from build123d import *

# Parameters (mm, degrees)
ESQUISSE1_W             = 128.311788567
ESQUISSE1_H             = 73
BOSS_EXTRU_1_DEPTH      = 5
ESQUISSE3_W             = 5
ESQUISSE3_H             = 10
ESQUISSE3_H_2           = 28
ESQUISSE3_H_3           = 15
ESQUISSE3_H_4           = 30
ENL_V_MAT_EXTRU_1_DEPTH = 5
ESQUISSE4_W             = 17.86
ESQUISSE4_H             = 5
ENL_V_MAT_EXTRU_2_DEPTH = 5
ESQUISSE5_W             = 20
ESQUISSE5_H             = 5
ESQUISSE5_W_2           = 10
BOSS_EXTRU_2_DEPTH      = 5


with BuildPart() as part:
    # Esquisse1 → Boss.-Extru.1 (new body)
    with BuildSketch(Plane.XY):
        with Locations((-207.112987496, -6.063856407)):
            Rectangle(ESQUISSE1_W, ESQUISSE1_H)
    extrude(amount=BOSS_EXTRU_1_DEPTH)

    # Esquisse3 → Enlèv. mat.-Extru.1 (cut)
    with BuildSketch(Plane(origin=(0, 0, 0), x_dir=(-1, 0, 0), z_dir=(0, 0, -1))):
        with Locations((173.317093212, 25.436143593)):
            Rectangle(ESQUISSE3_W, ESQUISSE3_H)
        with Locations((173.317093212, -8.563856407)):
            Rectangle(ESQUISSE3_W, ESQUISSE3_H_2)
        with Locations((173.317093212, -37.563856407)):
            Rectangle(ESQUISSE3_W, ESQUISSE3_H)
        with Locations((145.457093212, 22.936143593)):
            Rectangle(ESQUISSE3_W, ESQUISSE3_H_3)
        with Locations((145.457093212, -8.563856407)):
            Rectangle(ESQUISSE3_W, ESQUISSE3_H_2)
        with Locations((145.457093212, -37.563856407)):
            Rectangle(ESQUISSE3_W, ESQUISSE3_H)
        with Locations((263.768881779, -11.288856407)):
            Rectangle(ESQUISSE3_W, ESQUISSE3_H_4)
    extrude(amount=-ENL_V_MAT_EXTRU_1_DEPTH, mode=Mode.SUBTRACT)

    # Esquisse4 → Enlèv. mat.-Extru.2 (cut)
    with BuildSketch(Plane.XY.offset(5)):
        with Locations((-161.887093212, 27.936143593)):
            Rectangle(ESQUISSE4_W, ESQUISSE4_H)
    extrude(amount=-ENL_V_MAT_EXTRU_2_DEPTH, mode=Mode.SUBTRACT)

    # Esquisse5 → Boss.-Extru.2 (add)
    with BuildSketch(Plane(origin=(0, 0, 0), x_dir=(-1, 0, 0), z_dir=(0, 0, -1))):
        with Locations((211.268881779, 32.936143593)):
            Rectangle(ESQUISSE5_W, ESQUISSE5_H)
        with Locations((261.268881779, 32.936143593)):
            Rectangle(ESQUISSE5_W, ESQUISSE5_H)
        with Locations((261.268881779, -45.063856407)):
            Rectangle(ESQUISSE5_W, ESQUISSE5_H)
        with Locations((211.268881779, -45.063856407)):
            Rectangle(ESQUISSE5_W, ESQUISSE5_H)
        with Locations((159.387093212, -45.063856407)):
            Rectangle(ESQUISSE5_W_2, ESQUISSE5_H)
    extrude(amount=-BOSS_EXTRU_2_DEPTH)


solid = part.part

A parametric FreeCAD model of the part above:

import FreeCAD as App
import Part
import Sketcher
from FreeCAD import Vector
Q = App.Units.Quantity


def add_polygon(sketch, points):
    """Adds a closed chain of lines whose ends are joined by coincident constraints."""
    first, n = sketch.GeometryCount, len(points)
    for a, b in zip(points, points[1:] + points[:1]):
        sketch.addGeometry(Part.LineSegment(App.Vector(*a, 0), App.Vector(*b, 0)), False)
    for i in range(n):
        sketch.addConstraint(Sketcher.Constraint("Coincident", first + i, 2, first + (i + 1) % n, 1))

doc = App.newDocument("Part")
body = doc.addObject("PartDesign::Body", "Body")

sketch1 = doc.addObject("Sketcher::SketchObject", "Sketch")
body.addObject(sketch1)
sketch1.AttachmentSupport = (doc.XY_Plane, [""])
sketch1.MapMode = "FlatFace"
add_polygon(sketch1, [(-271, 30), (-271, -43), (-143, -43), (-143, 30)])
sketch1.addConstraint(Sketcher.Constraint("Vertical", 0))
sketch1.addConstraint(Sketcher.Constraint("Horizontal", 1))
sketch1.addConstraint(Sketcher.Constraint("Vertical", 2))
sketch1.addConstraint(Sketcher.Constraint("Horizontal", 3))
sketch1.addConstraint(Sketcher.Constraint("DistanceY", 0, 2, 0, 1, Q("73 mm")))
sketch1.addConstraint(Sketcher.Constraint("DistanceX", 1, 1, 1, 2, Q("128.311789 mm")))
sketch1.addConstraint(Sketcher.Constraint("DistanceX", 0, 2, -1, 1, Q("271.268882 mm")))
sketch1.addConstraint(Sketcher.Constraint("DistanceY", 0, 2, -1, 1, Q("42.563856 mm")))
pad1 = doc.addObject("PartDesign::Pad", "Pad")
body.addObject(pad1)
pad1.Profile = sketch1
pad1.Length = 5

sketch2 = doc.addObject("Sketcher::SketchObject", "Sketch001")
body.addObject(sketch2)
sketch2.AttachmentSupport = (doc.XY_Plane, [""])
sketch2.MapMode = "FlatFace"
add_polygon(sketch2, [(-171, 30), (-171, 20), (-176, 20), (-176, 30)])
add_polygon(sketch2, [(-171, 5), (-171, -23), (-176, -23), (-176, 5)])
add_polygon(sketch2, [(-171, -33), (-171, -43), (-176, -43), (-176, -33)])
add_polygon(sketch2, [(-143, 30), (-143, 15), (-148, 15), (-148, 30)])
add_polygon(sketch2, [(-143, 5), (-143, -23), (-148, -23), (-148, 5)])
add_polygon(sketch2, [(-143, -33), (-143, -43), (-148, -43), (-148, -33)])
add_polygon(sketch2, [(-261, 4), (-261, -26), (-266, -26), (-266, 4)])
sketch2.addConstraint(Sketcher.Constraint("Vertical", 0))
sketch2.addConstraint(Sketcher.Constraint("Horizontal", 1))
sketch2.addConstraint(Sketcher.Constraint("Vertical", 2))
sketch2.addConstraint(Sketcher.Constraint("Horizontal", 3))
sketch2.addConstraint(Sketcher.Constraint("Vertical", 4))
sketch2.addConstraint(Sketcher.Constraint("Horizontal", 5))
sketch2.addConstraint(Sketcher.Constraint("Vertical", 6))
sketch2.addConstraint(Sketcher.Constraint("Horizontal", 7))
sketch2.addConstraint(Sketcher.Constraint("Vertical", 8))
sketch2.addConstraint(Sketcher.Constraint("Horizontal", 9))
sketch2.addConstraint(Sketcher.Constraint("Vertical", 10))
sketch2.addConstraint(Sketcher.Constraint("Horizontal", 11))
sketch2.addConstraint(Sketcher.Constraint("Vertical", 12))
sketch2.addConstraint(Sketcher.Constraint("Horizontal", 13))
sketch2.addConstraint(Sketcher.Constraint("Vertical", 14))
sketch2.addConstraint(Sketcher.Constraint("Horizontal", 15))
sketch2.addConstraint(Sketcher.Constraint("Vertical", 16))
sketch2.addConstraint(Sketcher.Constraint("Horizontal", 17))
sketch2.addConstraint(Sketcher.Constraint("Vertical", 18))
sketch2.addConstraint(Sketcher.Constraint("Horizontal", 19))
sketch2.addConstraint(Sketcher.Constraint("Vertical", 20))
sketch2.addConstraint(Sketcher.Constraint("Horizontal", 21))
sketch2.addConstraint(Sketcher.Constraint("Vertical", 22))
sketch2.addConstraint(Sketcher.Constraint("Horizontal", 23))
sketch2.addConstraint(Sketcher.Constraint("Vertical", 24))
sketch2.addConstraint(Sketcher.Constraint("Horizontal", 25))
sketch2.addConstraint(Sketcher.Constraint("Vertical", 26))
sketch2.addConstraint(Sketcher.Constraint("Horizontal", 27))
sketch2.addConstraint(Sketcher.Constraint("Horizontal", 3, 2, 14, 2))
sketch2.addConstraint(Sketcher.Constraint("Horizontal", 5, 2, 16, 2))
sketch2.addConstraint(Sketcher.Constraint("Horizontal", 7, 2, 18, 2))
sketch2.addConstraint(Sketcher.Constraint("Horizontal", 9, 2, 20, 2))
sketch2.addConstraint(Sketcher.Constraint("Horizontal", 11, 2, 22, 2))
sketch2.addConstraint(Sketcher.Constraint("Vertical", 3, 2, 4, 2))
sketch2.addConstraint(Sketcher.Constraint("Vertical", 2, 2, 5, 2))
sketch2.addConstraint(Sketcher.Constraint("Vertical", 7, 2, 8, 2))
sketch2.addConstraint(Sketcher.Constraint("Vertical", 6, 2, 9, 2))
sketch2.addConstraint(Sketcher.Constraint("Vertical", 15, 2, 16, 2))
sketch2.addConstraint(Sketcher.Constraint("Vertical", 14, 2, 17, 2))
sketch2.addConstraint(Sketcher.Constraint("Vertical", 19, 2, 20, 2))
sketch2.addConstraint(Sketcher.Constraint("Vertical", 18, 2, 21, 2))
sketch2.addConstraint(Sketcher.Constraint("Equal", 11, 13))
sketch2.addConstraint(Sketcher.Constraint("Equal", 23, 25))
sketch2.addConstraint(Sketcher.Constraint("Equal", 2, 8))
sketch2.addConstraint(Sketcher.Constraint("DistanceX", 1, 2, 1, 1, Q("5 mm")))
sketch2.addConstraint(Sketcher.Constraint("DistanceY", 0, 2, 0, 1, Q("10 mm")))
sketch2.addConstraint(Sketcher.Constraint("DistanceY", 4, 2, 4, 1, Q("28 mm")))
sketch2.addConstraint(Sketcher.Constraint("DistanceY", 12, 2, 12, 1, Q("15 mm")))
sketch2.addConstraint(Sketcher.Constraint("DistanceY", 24, 2, 24, 1, Q("30 mm")))
sketch2.addConstraint(Sketcher.Constraint("DistanceY", 4, 2, 0, 2, Q("43 mm")))
sketch2.addConstraint(Sketcher.Constraint("DistanceY", 8, 2, 4, 2, Q("20 mm")))
sketch2.addConstraint(Sketcher.Constraint("DistanceX", 0, 2, 12, 2, Q("27.86 mm")))
sketch2.addConstraint(Sketcher.Constraint("DistanceY", 24, 2, 5, 2, Q("3.725 mm")))
sketch2.addConstraint(Sketcher.Constraint("DistanceX", 24, 2, -1, 1, Q("261.268882 mm")))
sketch2.addConstraint(Sketcher.Constraint("DistanceX", 24, 2, 5, 2, Q("85.451789 mm")))
sketch2.addConstraint(Sketcher.Constraint("DistanceY", -1, 1, 0, 2, Q("20.436144 mm")))
pocket1 = doc.addObject("PartDesign::Pocket", "Pocket")
body.addObject(pocket1)
pocket1.Profile = sketch2
pocket1.Length = 5
pocket1.Reversed = True

sketch3 = doc.addObject("Sketcher::SketchObject", "Sketch002")
body.addObject(sketch3)
sketch3.AttachmentSupport = (doc.XY_Plane, [""])
sketch3.MapMode = "FlatFace"
sketch3.AttachmentOffset = App.Placement(Vector(0, 0, 5), App.Rotation())
add_polygon(sketch3, [(-171, 30), (-171, 25), (-153, 25), (-153, 30)])
sketch3.addConstraint(Sketcher.Constraint("Vertical", 0))
sketch3.addConstraint(Sketcher.Constraint("Horizontal", 1))
sketch3.addConstraint(Sketcher.Constraint("Vertical", 2))
sketch3.addConstraint(Sketcher.Constraint("Horizontal", 3))
sketch3.addConstraint(Sketcher.Constraint("DistanceY", 0, 2, 0, 1, Q("5 mm")))
sketch3.addConstraint(Sketcher.Constraint("DistanceX", 1, 1, 1, 2, Q("17.86 mm")))
sketch3.addConstraint(Sketcher.Constraint("DistanceX", 0, 2, -1, 1, Q("170.817093 mm")))
sketch3.addConstraint(Sketcher.Constraint("DistanceY", -1, 1, 0, 2, Q("25.436144 mm")))
pocket2 = doc.addObject("PartDesign::Pocket", "Pocket001")
body.addObject(pocket2)
pocket2.Profile = sketch3
pocket2.Length = 5

sketch4 = doc.addObject("Sketcher::SketchObject", "Sketch003")
body.addObject(sketch4)
sketch4.AttachmentSupport = (doc.XY_Plane, [""])
sketch4.MapMode = "FlatFace"
add_polygon(sketch4, [(-201.3, 35.4), (-201.3, 30.4), (-221.3, 30.4), (-221.3, 35.4)])
add_polygon(sketch4, [(-251.3, 35.4), (-251.3, 30.4), (-271.3, 30.4), (-271.3, 35.4)])
add_polygon(sketch4, [(-251.3, -42.6), (-251.3, -47.6), (-271.3, -47.6), (-271.3, -42.6)])
add_polygon(sketch4, [(-201.3, -42.6), (-201.3, -47.6), (-221.3, -47.6), (-221.3, -42.6)])
add_polygon(sketch4, [(-154.4, -42.6), (-154.4, -47.6), (-164.4, -47.6), (-164.4, -42.6)])
sketch4.addConstraint(Sketcher.Constraint("Vertical", 0))
sketch4.addConstraint(Sketcher.Constraint("Horizontal", 1))
sketch4.addConstraint(Sketcher.Constraint("Vertical", 2))
sketch4.addConstraint(Sketcher.Constraint("Horizontal", 3))
sketch4.addConstraint(Sketcher.Constraint("Vertical", 4))
sketch4.addConstraint(Sketcher.Constraint("Horizontal", 5))
sketch4.addConstraint(Sketcher.Constraint("Vertical", 6))
sketch4.addConstraint(Sketcher.Constraint("Horizontal", 7))
sketch4.addConstraint(Sketcher.Constraint("Vertical", 8))
sketch4.addConstraint(Sketcher.Constraint("Horizontal", 9))
sketch4.addConstraint(Sketcher.Constraint("Vertical", 10))
sketch4.addConstraint(Sketcher.Constraint("Horizontal", 11))
sketch4.addConstraint(Sketcher.Constraint("Vertical", 12))
sketch4.addConstraint(Sketcher.Constraint("Horizontal", 13))
sketch4.addConstraint(Sketcher.Constraint("Vertical", 14))
sketch4.addConstraint(Sketcher.Constraint("Horizontal", 15))
sketch4.addConstraint(Sketcher.Constraint("Vertical", 16))
sketch4.addConstraint(Sketcher.Constraint("Horizontal", 17))
sketch4.addConstraint(Sketcher.Constraint("Vertical", 18))
sketch4.addConstraint(Sketcher.Constraint("Horizontal", 19))
sketch4.addConstraint(Sketcher.Constraint("Horizontal", 1, 2, 4, 2))
sketch4.addConstraint(Sketcher.Constraint("Horizontal", 3, 2, 6, 2))
sketch4.addConstraint(Sketcher.Constraint("Horizontal", 9, 2, 12, 2))
sketch4.addConstraint(Sketcher.Constraint("Horizontal", 11, 2, 14, 2))
sketch4.addConstraint(Sketcher.Constraint("Horizontal", 13, 2, 16, 2))
sketch4.addConstraint(Sketcher.Constraint("Horizontal", 15, 2, 18, 2))
sketch4.addConstraint(Sketcher.Constraint("Vertical", 7, 2, 8, 2))
sketch4.addConstraint(Sketcher.Constraint("Vertical", 6, 2, 9, 2))
sketch4.addConstraint(Sketcher.Constraint("Vertical", 3, 2, 12, 2))
sketch4.addConstraint(Sketcher.Constraint("Vertical", 2, 2, 13, 2))
sketch4.addConstraint(Sketcher.Constraint("Equal", 3, 5))
sketch4.addConstraint(Sketcher.Constraint("Equal", 6, 8))
sketch4.addConstraint(Sketcher.Constraint("DistanceX", 1, 2, 1, 1, Q("20 mm")))
sketch4.addConstraint(Sketcher.Constraint("DistanceX", 17, 2, 17, 1, Q("10 mm")))
sketch4.addConstraint(Sketcher.Constraint("DistanceY", 0, 2, 0, 1, Q("5 mm")))
sketch4.addConstraint(Sketcher.Constraint("DistanceX", 4, 2, 1, 2, Q("30 mm")))
sketch4.addConstraint(Sketcher.Constraint("DistanceY", 8, 2, 4, 2, Q("78 mm")))
sketch4.addConstraint(Sketcher.Constraint("DistanceX", 0, 2, -1, 1, Q("201.268882 mm")))
sketch4.addConstraint(Sketcher.Constraint("DistanceX", 12, 2, 16, 2, Q("46.881789 mm")))
sketch4.addConstraint(Sketcher.Constraint("DistanceY", -1, 1, 0, 2, Q("30.436144 mm")))
pad2 = doc.addObject("PartDesign::Pad", "Pad001")
body.addObject(pad2)
pad2.Profile = sketch4
pad2.Length = 5

doc.recompute()
